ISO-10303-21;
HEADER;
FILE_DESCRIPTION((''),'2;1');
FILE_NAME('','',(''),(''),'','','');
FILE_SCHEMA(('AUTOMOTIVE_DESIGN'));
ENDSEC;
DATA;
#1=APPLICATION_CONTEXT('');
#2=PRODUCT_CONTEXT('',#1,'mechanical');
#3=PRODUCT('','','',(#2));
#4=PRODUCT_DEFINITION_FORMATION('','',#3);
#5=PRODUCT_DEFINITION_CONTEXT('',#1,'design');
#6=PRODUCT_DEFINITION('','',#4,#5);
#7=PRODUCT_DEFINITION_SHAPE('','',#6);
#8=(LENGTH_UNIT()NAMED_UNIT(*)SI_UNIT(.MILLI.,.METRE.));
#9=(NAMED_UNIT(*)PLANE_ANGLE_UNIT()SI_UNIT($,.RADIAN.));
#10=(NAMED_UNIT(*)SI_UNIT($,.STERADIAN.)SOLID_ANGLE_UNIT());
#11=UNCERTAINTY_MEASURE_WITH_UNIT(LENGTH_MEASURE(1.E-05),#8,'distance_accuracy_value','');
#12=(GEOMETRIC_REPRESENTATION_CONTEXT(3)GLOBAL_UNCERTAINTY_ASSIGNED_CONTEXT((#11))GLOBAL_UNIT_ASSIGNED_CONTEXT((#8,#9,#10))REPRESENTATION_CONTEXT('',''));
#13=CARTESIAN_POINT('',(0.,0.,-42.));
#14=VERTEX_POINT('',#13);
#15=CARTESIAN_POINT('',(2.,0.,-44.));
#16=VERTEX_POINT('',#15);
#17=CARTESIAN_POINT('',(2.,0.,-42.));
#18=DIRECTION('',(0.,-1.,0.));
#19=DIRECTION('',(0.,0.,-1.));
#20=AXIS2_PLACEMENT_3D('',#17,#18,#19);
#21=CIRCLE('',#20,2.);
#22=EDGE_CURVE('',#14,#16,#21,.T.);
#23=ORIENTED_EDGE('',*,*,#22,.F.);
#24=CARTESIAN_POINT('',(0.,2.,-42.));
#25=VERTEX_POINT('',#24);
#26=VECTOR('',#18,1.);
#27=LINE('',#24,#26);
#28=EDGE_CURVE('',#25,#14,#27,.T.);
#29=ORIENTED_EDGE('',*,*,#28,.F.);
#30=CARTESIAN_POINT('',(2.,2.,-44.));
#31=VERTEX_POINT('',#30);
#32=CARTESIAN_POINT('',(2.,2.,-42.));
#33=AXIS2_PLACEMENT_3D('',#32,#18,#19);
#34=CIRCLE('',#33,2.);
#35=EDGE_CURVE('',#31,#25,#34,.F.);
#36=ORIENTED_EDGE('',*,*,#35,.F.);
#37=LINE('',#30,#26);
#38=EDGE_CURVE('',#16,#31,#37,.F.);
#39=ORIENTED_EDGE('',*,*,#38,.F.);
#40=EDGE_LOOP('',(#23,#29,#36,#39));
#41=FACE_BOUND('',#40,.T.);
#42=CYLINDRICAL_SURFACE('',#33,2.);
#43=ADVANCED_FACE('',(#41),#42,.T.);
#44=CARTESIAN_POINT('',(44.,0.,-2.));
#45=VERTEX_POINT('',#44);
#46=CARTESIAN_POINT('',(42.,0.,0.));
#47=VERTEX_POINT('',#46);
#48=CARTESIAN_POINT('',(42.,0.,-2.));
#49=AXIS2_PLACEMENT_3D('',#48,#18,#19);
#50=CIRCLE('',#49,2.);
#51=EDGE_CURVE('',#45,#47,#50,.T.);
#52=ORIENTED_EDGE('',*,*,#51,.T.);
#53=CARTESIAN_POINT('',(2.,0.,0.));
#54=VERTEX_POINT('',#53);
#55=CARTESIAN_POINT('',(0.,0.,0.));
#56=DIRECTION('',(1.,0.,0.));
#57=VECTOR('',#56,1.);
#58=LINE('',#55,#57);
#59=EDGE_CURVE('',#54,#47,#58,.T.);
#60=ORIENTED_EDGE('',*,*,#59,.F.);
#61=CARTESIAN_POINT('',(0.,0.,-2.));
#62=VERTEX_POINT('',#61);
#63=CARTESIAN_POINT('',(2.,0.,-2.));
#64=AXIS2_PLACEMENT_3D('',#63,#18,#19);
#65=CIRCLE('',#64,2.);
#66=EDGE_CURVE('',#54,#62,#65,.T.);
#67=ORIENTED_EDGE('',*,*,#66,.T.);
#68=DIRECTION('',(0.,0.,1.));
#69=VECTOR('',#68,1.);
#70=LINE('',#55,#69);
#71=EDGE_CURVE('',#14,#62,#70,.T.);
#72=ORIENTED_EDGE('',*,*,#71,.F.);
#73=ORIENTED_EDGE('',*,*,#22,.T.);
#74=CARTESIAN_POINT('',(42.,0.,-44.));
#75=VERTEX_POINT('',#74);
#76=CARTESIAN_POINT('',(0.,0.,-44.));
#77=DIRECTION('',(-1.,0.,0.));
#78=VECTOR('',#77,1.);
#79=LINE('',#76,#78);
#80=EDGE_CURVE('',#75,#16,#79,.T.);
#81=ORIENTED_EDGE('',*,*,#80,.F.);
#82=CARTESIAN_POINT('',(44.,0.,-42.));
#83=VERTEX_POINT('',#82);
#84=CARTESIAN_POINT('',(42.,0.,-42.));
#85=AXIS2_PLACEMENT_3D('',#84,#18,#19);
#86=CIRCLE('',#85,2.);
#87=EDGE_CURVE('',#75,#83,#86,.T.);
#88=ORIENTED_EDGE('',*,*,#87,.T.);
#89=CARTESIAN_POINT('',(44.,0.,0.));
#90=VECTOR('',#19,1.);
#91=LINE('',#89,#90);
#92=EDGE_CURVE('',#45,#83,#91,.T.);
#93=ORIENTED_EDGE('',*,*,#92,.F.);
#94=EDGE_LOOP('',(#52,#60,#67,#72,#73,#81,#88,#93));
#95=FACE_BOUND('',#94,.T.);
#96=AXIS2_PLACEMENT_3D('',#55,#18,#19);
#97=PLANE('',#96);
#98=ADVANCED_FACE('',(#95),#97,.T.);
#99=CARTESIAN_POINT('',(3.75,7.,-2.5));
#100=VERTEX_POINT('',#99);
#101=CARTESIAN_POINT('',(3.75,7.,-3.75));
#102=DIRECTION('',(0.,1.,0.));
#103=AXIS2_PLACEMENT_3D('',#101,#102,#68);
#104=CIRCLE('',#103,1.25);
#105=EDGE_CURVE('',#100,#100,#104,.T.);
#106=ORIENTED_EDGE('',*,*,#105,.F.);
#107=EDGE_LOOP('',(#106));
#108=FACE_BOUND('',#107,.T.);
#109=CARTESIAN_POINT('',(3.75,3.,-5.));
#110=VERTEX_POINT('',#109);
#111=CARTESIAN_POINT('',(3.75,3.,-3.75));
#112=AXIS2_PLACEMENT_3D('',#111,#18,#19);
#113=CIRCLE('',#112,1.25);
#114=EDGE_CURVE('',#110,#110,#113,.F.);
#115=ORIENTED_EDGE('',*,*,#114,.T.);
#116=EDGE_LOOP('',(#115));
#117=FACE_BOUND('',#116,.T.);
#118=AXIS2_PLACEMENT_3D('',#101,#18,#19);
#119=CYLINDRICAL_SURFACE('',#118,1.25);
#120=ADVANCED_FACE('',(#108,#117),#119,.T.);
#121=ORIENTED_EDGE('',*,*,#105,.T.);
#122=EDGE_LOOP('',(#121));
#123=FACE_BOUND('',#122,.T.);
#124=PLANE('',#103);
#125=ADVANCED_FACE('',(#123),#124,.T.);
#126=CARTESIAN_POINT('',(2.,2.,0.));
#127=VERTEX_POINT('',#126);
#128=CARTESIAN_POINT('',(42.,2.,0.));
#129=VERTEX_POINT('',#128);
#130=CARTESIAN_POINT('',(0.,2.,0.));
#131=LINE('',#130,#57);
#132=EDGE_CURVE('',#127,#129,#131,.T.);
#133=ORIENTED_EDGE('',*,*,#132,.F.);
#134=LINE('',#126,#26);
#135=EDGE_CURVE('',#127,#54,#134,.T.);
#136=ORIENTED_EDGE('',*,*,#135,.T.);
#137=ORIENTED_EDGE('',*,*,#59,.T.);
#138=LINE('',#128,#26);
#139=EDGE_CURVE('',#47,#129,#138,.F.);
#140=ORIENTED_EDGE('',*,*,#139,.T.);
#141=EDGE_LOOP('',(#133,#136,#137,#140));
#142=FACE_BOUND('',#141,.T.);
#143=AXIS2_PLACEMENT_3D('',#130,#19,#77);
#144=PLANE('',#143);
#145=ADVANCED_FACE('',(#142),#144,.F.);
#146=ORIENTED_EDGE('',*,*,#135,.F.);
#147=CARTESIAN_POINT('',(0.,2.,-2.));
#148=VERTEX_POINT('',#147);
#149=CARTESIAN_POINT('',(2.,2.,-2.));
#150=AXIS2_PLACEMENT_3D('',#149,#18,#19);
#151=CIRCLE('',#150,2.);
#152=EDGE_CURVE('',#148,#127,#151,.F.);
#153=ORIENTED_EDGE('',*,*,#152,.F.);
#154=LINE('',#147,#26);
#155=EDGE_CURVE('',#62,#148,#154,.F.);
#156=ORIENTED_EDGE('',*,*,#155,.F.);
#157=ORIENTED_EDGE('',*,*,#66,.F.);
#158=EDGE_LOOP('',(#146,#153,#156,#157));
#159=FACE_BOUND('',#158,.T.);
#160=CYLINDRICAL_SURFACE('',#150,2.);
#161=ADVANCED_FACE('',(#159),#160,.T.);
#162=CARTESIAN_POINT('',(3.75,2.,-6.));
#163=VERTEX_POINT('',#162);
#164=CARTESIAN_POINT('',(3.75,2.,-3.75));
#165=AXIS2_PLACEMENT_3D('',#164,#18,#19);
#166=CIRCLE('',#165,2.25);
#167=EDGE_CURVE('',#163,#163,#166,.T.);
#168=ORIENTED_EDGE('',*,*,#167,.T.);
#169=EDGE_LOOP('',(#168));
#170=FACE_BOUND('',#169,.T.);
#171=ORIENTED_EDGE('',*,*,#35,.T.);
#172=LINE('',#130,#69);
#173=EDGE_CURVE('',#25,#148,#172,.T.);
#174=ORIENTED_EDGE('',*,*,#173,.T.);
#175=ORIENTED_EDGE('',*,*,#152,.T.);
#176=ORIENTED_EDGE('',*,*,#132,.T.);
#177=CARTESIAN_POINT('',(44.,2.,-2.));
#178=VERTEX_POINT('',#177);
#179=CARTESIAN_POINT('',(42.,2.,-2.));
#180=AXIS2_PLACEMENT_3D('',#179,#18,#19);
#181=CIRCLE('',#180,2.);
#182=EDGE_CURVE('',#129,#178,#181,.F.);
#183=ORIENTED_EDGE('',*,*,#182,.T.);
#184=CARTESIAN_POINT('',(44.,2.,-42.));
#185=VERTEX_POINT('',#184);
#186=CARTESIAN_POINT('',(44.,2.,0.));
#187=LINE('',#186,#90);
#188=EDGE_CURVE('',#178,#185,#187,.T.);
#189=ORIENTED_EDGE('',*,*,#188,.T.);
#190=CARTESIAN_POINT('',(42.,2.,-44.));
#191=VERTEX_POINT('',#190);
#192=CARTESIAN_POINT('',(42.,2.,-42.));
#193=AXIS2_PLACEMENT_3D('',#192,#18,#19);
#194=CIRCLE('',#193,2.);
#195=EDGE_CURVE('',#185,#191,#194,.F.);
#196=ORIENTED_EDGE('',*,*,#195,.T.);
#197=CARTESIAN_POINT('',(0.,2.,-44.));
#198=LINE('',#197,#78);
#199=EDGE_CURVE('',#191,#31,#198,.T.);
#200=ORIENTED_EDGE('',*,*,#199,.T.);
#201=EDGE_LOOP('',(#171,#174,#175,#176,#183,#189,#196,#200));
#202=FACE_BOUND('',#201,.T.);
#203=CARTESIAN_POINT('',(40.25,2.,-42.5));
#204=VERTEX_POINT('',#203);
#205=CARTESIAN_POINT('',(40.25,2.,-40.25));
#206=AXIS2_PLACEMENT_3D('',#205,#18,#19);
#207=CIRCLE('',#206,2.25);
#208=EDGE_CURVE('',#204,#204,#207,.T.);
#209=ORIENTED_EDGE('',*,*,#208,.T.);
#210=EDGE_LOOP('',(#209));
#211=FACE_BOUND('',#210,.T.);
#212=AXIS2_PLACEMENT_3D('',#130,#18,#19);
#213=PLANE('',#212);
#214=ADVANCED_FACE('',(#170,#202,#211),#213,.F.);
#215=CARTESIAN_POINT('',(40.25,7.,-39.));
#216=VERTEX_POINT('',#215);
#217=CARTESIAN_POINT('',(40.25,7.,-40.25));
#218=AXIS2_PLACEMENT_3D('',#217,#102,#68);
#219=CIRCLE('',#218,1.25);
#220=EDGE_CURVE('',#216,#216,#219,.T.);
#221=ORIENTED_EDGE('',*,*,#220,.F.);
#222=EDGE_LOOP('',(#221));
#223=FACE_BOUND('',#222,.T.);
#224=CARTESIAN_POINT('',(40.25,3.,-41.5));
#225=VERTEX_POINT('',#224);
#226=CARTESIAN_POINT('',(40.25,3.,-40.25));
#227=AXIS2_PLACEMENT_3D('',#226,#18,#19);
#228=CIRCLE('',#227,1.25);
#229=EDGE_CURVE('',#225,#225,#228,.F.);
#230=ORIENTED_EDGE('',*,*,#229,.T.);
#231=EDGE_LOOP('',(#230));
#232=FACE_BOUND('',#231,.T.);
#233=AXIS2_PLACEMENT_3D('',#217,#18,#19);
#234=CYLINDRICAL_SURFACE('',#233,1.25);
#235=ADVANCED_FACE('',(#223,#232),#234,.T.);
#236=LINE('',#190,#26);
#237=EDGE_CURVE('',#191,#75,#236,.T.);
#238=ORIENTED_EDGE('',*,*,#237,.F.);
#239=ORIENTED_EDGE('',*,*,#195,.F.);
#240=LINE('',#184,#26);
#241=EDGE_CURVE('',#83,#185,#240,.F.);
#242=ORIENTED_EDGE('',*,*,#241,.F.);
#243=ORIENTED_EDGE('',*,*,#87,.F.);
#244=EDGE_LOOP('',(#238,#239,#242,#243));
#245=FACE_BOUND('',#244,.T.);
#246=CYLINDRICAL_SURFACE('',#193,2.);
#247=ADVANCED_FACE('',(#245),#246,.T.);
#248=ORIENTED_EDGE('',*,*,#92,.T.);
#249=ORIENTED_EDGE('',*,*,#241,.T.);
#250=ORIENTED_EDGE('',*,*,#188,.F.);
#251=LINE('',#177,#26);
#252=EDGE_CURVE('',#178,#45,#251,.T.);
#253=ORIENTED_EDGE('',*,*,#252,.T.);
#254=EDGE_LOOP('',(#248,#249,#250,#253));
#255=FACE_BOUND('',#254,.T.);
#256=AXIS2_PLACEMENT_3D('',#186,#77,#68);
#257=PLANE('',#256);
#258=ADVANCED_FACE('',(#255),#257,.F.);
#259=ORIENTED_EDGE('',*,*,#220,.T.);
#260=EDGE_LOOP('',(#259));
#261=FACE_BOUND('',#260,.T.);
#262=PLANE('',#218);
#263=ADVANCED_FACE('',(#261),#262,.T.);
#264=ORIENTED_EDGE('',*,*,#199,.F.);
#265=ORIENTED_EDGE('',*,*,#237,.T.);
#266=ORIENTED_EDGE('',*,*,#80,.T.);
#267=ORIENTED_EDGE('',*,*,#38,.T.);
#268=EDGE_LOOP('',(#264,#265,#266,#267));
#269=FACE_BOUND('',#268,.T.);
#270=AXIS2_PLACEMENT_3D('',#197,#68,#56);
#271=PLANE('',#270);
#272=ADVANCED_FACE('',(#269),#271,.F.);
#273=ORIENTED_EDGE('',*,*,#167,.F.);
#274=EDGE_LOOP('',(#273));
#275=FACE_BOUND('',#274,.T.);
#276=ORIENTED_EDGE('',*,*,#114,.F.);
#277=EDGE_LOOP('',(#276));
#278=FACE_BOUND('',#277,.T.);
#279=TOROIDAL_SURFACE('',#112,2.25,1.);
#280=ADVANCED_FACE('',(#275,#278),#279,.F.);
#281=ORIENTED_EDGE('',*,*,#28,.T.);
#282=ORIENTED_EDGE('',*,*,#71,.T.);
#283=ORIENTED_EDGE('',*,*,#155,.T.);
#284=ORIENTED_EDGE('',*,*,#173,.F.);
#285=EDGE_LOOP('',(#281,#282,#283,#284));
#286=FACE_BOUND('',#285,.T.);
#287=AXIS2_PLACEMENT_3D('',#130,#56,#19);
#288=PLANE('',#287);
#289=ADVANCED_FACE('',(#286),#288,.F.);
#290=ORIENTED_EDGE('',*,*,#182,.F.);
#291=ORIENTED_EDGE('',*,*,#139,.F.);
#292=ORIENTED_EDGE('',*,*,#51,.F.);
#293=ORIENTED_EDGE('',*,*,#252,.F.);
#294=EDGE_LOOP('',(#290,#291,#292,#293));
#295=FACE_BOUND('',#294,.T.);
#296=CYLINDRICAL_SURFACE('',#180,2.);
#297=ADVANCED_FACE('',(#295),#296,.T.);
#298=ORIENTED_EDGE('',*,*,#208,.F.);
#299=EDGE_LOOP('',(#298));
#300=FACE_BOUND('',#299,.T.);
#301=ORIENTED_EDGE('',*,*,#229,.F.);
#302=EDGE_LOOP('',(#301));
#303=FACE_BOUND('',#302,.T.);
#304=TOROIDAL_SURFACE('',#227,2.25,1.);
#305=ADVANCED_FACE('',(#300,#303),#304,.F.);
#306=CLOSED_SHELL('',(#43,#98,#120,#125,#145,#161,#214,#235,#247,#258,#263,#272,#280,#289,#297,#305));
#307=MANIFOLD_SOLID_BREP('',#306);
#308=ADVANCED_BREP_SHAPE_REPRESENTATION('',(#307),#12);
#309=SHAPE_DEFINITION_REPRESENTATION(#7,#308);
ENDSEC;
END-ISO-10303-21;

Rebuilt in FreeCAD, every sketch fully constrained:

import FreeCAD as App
import Part
import Sketcher
from FreeCAD import Vector


def edges_at(feature, points):
    """Names of the edges that pass closest to the given points."""
    edges = feature.Shape.Edges
    near = lambda p: min(range(len(edges)), key=lambda i: edges[i].distToShape(Part.Vertex(*p))[0])
    return sorted({f"Edge{near(p) + 1}" for p in points})

doc = App.newDocument("Part")
params = doc.addObject("Spreadsheet::Sheet", "Params")
for row, (alias, value) in enumerate([
    ("sketch1_width", "44 mm"),
    ("pad1_length", "2 mm"),
    ("sketch2_diameter", "2.5 mm"),
    ("pad2_length", "5 mm"),
    ("fillet_radius", "2 mm"),
    ("fillet2_radius", "1 mm"),
], start=1):
    params.set(f"A{row}", alias)
    params.set(f"B{row}", "=" + value)
    params.setAlias(f"B{row}", alias)

body = doc.addObject("PartDesign::Body", "Body")

sketch1 = body.newObject("Sketcher::SketchObject", "Sketch")
sketch1.AttachmentSupport = (doc.getObject("XZ_Plane"), [""])
sketch1.MapMode = "FlatFace"
sketch1.addGeometry([
    Part.LineSegment(Vector(0, -44, 0), Vector(0, 0, 0)),
    Part.LineSegment(Vector(0, 0, 0), Vector(44, 0, 0)),
    Part.LineSegment(Vector(44, 0, 0), Vector(44, -44, 0)),
    Part.LineSegment(Vector(44, -44, 0), Vector(0, -44, 0)),
], False)
sketch1.addConstraint([
    Sketcher.Constraint("Coincident", 0, 2, 1, 1),
    Sketcher.Constraint("Coincident", 1, 2, 2, 1),
    Sketcher.Constraint("Coincident", 2, 2, 3, 1),
    Sketcher.Constraint("Coincident", 3, 2, 0, 1),
    Sketcher.Constraint("Vertical", 0),
    Sketcher.Constraint("Horizontal", 1),
    Sketcher.Constraint("Vertical", 2),
    Sketcher.Constraint("Horizontal", 3),
    Sketcher.Constraint("Coincident", 0, 2, -1, 1),
    Sketcher.Constraint("Equal", 3, 0),
    Sketcher.Constraint("DistanceX", 1, 1, 1, 2, 44.0),
])
sketch1.setExpression("Constraints[10]", "Params.sketch1_width")
pad1 = body.newObject("PartDesign::Pad", "Pad")
pad1.Profile = sketch1
pad1.setExpression("Length", "Params.pad1_length")
pad1.Reversed = True

sketch2 = body.newObject("Sketcher::SketchObject", "Sketch001")
sketch2.AttachmentSupport = (doc.getObject("XZ_Plane"), [""])
sketch2.MapMode = "FlatFace"
sketch2.AttachmentOffset = App.Placement(Vector(0, 0, -2), App.Rotation())
sketch2.addGeometry([
    Part.Circle(Vector(3.8, -3.8, 0), Vector(0, 0, 1), 1.2),
    Part.Circle(Vector(40.2, -40.2, 0), Vector(0, 0, 1), 1.2),
], False)
sketch2.addConstraint([
    Sketcher.Constraint("Equal", 0, 1),
    Sketcher.Constraint("Diameter", 0, 2.5),
    Sketcher.Constraint("DistanceX", 0, 3, 1, 3, 36.5),
    Sketcher.Constraint("DistanceY", 1, 3, 0, 3, 36.5),
    Sketcher.Constraint("DistanceX", -1, 1, 0, 3, 3.75),
    Sketcher.Constraint("DistanceY", 0, 3, -1, 1, 3.75),
])
sketch2.setExpression("Constraints[1]", "Params.sketch2_diameter")
pad2 = body.newObject("PartDesign::Pad", "Pad001")
pad2.Profile = sketch2
pad2.setExpression("Length", "Params.pad2_length")
pad2.Reversed = True
doc.recompute()

fillet = body.newObject("PartDesign::Fillet", "Fillet")
fillet.Base = (pad2, edges_at(pad2, [
    (0, 1, -44),
    (44, 1, -44),
    (44, 1, 0),
    (0, 1, 0),
]))
fillet.setExpression("Radius", "Params.fillet_radius")
doc.recompute()

fillet2 = body.newObject("PartDesign::Fillet", "Fillet001")
fillet2.Base = (fillet, edges_at(fillet, [(40.25, 2, -39), (3.75, 2, -2.5)]))
fillet2.setExpression("Radius", "Params.fillet2_radius")

doc.recompute()
